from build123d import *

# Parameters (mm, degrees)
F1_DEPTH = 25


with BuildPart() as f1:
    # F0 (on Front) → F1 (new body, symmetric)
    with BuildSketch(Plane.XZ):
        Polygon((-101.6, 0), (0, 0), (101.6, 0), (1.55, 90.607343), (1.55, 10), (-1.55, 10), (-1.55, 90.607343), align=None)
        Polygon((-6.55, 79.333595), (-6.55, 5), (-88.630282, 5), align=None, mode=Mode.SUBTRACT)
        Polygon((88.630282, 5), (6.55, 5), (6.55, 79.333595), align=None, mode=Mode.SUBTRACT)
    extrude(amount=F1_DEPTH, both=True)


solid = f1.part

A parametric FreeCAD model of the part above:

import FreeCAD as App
import Part
import Sketcher
from FreeCAD import Vector
Q = App.Units.Quantity


def add_polygon(sketch, points):
    """Adds a closed chain of lines whose ends are joined by coincident constraints."""
    first, n = sketch.GeometryCount, len(points)
    for a, b in zip(points, points[1:] + points[:1]):
        sketch.addGeometry(Part.LineSegment(App.Vector(*a, 0), App.Vector(*b, 0)), False)
    for i in range(n):
        sketch.addConstraint(Sketcher.Constraint("Coincident", first + i, 2, first + (i + 1) % n, 1))

doc = App.newDocument("Part")
params = doc.addObject("Spreadsheet::Sheet", "Params")
for row, (alias, value) in enumerate([
    ("sketch1_width", "203.2 mm"),
    ("sketch1_width2", "3.1 mm"),
    ("pad1_length", "50 mm"),
], start=1):
    params.set(f"A{row}", alias)
    params.set(f"B{row}", "=" + value)
    params.setAlias(f"B{row}", alias)

body = doc.addObject("PartDesign::Body", "Body")

# Sketch on XZ plane
sketch1 = body.newObject("Sketcher::SketchObject", "Sketch")
sketch1.AttachmentSupport = (doc.getObject("XZ_Plane"), [""])
sketch1.MapMode = "FlatFace"
add_polygon(sketch1, [(-101.6, 0), (101.6, 0), (1.55, 90.607343), (1.55, 10), (-1.55, 10), (-1.55, 90.607343)])  # lines 0-5
add_polygon(sketch1, [(-88.630282, 5), (-6.55, 79.333595), (-6.55, 5)])  # lines 6-8
add_polygon(sketch1, [(6.55, 79.333595), (88.630282, 5), (6.55, 5)])  # lines 9-11
sketch1.addConstraint([
    Sketcher.Constraint("Horizontal", 0),
    Sketcher.Constraint("Vertical", 2),
    Sketcher.Constraint("Horizontal", 3),
    Sketcher.Constraint("Vertical", 4),
    Sketcher.Constraint("Vertical", 7),
    Sketcher.Constraint("Horizontal", 8),
    Sketcher.Constraint("Horizontal", 10),
    Sketcher.Constraint("Vertical", 11),
    Sketcher.Constraint("Symmetric", 0, 2, 5, 2, -1, 1),
    Sketcher.Constraint("Symmetric", 1, 2, 4, 2, -2),
    Sketcher.Constraint("Symmetric", 8, 2, 9, 2, -2),
    Sketcher.Constraint("Symmetric", 6, 2, 11, 2, -2),
    Sketcher.Constraint("Parallel", 5, 6),
    Sketcher.Constraint("DistanceX", 0, 1, 0, 2, Q("203.2 mm")),
    Sketcher.Constraint("DistanceX", 3, 2, 3, 1, Q("3.1 mm")),
    Sketcher.Constraint("DistanceY", -1, 1, 2, 2, Q("10 mm")),
    Sketcher.Constraint("DistanceY", -1, 1, 7, 2, Q("5 mm")),
    Sketcher.Constraint("DistanceX", 6, 2, 4, 2, Q("5 mm")),
    Sketcher.Constraint("DistanceX", 8, 2, 8, 1, Q("82.080282 mm")),
    Sketcher.Constraint("DistanceY", 2, 2, 2, 1, Q("80.607343 mm")),
])
sketch1.setExpression("Constraints[25]", "Params.sketch1_width")
sketch1.setExpression("Constraints[26]", "Params.sketch1_width2")
pad1 = body.newObject("PartDesign::Pad", "Pad")
pad1.Profile = sketch1
pad1.setExpression("Length", "Params.pad1_length")
pad1.Midplane = True

doc.recompute()
